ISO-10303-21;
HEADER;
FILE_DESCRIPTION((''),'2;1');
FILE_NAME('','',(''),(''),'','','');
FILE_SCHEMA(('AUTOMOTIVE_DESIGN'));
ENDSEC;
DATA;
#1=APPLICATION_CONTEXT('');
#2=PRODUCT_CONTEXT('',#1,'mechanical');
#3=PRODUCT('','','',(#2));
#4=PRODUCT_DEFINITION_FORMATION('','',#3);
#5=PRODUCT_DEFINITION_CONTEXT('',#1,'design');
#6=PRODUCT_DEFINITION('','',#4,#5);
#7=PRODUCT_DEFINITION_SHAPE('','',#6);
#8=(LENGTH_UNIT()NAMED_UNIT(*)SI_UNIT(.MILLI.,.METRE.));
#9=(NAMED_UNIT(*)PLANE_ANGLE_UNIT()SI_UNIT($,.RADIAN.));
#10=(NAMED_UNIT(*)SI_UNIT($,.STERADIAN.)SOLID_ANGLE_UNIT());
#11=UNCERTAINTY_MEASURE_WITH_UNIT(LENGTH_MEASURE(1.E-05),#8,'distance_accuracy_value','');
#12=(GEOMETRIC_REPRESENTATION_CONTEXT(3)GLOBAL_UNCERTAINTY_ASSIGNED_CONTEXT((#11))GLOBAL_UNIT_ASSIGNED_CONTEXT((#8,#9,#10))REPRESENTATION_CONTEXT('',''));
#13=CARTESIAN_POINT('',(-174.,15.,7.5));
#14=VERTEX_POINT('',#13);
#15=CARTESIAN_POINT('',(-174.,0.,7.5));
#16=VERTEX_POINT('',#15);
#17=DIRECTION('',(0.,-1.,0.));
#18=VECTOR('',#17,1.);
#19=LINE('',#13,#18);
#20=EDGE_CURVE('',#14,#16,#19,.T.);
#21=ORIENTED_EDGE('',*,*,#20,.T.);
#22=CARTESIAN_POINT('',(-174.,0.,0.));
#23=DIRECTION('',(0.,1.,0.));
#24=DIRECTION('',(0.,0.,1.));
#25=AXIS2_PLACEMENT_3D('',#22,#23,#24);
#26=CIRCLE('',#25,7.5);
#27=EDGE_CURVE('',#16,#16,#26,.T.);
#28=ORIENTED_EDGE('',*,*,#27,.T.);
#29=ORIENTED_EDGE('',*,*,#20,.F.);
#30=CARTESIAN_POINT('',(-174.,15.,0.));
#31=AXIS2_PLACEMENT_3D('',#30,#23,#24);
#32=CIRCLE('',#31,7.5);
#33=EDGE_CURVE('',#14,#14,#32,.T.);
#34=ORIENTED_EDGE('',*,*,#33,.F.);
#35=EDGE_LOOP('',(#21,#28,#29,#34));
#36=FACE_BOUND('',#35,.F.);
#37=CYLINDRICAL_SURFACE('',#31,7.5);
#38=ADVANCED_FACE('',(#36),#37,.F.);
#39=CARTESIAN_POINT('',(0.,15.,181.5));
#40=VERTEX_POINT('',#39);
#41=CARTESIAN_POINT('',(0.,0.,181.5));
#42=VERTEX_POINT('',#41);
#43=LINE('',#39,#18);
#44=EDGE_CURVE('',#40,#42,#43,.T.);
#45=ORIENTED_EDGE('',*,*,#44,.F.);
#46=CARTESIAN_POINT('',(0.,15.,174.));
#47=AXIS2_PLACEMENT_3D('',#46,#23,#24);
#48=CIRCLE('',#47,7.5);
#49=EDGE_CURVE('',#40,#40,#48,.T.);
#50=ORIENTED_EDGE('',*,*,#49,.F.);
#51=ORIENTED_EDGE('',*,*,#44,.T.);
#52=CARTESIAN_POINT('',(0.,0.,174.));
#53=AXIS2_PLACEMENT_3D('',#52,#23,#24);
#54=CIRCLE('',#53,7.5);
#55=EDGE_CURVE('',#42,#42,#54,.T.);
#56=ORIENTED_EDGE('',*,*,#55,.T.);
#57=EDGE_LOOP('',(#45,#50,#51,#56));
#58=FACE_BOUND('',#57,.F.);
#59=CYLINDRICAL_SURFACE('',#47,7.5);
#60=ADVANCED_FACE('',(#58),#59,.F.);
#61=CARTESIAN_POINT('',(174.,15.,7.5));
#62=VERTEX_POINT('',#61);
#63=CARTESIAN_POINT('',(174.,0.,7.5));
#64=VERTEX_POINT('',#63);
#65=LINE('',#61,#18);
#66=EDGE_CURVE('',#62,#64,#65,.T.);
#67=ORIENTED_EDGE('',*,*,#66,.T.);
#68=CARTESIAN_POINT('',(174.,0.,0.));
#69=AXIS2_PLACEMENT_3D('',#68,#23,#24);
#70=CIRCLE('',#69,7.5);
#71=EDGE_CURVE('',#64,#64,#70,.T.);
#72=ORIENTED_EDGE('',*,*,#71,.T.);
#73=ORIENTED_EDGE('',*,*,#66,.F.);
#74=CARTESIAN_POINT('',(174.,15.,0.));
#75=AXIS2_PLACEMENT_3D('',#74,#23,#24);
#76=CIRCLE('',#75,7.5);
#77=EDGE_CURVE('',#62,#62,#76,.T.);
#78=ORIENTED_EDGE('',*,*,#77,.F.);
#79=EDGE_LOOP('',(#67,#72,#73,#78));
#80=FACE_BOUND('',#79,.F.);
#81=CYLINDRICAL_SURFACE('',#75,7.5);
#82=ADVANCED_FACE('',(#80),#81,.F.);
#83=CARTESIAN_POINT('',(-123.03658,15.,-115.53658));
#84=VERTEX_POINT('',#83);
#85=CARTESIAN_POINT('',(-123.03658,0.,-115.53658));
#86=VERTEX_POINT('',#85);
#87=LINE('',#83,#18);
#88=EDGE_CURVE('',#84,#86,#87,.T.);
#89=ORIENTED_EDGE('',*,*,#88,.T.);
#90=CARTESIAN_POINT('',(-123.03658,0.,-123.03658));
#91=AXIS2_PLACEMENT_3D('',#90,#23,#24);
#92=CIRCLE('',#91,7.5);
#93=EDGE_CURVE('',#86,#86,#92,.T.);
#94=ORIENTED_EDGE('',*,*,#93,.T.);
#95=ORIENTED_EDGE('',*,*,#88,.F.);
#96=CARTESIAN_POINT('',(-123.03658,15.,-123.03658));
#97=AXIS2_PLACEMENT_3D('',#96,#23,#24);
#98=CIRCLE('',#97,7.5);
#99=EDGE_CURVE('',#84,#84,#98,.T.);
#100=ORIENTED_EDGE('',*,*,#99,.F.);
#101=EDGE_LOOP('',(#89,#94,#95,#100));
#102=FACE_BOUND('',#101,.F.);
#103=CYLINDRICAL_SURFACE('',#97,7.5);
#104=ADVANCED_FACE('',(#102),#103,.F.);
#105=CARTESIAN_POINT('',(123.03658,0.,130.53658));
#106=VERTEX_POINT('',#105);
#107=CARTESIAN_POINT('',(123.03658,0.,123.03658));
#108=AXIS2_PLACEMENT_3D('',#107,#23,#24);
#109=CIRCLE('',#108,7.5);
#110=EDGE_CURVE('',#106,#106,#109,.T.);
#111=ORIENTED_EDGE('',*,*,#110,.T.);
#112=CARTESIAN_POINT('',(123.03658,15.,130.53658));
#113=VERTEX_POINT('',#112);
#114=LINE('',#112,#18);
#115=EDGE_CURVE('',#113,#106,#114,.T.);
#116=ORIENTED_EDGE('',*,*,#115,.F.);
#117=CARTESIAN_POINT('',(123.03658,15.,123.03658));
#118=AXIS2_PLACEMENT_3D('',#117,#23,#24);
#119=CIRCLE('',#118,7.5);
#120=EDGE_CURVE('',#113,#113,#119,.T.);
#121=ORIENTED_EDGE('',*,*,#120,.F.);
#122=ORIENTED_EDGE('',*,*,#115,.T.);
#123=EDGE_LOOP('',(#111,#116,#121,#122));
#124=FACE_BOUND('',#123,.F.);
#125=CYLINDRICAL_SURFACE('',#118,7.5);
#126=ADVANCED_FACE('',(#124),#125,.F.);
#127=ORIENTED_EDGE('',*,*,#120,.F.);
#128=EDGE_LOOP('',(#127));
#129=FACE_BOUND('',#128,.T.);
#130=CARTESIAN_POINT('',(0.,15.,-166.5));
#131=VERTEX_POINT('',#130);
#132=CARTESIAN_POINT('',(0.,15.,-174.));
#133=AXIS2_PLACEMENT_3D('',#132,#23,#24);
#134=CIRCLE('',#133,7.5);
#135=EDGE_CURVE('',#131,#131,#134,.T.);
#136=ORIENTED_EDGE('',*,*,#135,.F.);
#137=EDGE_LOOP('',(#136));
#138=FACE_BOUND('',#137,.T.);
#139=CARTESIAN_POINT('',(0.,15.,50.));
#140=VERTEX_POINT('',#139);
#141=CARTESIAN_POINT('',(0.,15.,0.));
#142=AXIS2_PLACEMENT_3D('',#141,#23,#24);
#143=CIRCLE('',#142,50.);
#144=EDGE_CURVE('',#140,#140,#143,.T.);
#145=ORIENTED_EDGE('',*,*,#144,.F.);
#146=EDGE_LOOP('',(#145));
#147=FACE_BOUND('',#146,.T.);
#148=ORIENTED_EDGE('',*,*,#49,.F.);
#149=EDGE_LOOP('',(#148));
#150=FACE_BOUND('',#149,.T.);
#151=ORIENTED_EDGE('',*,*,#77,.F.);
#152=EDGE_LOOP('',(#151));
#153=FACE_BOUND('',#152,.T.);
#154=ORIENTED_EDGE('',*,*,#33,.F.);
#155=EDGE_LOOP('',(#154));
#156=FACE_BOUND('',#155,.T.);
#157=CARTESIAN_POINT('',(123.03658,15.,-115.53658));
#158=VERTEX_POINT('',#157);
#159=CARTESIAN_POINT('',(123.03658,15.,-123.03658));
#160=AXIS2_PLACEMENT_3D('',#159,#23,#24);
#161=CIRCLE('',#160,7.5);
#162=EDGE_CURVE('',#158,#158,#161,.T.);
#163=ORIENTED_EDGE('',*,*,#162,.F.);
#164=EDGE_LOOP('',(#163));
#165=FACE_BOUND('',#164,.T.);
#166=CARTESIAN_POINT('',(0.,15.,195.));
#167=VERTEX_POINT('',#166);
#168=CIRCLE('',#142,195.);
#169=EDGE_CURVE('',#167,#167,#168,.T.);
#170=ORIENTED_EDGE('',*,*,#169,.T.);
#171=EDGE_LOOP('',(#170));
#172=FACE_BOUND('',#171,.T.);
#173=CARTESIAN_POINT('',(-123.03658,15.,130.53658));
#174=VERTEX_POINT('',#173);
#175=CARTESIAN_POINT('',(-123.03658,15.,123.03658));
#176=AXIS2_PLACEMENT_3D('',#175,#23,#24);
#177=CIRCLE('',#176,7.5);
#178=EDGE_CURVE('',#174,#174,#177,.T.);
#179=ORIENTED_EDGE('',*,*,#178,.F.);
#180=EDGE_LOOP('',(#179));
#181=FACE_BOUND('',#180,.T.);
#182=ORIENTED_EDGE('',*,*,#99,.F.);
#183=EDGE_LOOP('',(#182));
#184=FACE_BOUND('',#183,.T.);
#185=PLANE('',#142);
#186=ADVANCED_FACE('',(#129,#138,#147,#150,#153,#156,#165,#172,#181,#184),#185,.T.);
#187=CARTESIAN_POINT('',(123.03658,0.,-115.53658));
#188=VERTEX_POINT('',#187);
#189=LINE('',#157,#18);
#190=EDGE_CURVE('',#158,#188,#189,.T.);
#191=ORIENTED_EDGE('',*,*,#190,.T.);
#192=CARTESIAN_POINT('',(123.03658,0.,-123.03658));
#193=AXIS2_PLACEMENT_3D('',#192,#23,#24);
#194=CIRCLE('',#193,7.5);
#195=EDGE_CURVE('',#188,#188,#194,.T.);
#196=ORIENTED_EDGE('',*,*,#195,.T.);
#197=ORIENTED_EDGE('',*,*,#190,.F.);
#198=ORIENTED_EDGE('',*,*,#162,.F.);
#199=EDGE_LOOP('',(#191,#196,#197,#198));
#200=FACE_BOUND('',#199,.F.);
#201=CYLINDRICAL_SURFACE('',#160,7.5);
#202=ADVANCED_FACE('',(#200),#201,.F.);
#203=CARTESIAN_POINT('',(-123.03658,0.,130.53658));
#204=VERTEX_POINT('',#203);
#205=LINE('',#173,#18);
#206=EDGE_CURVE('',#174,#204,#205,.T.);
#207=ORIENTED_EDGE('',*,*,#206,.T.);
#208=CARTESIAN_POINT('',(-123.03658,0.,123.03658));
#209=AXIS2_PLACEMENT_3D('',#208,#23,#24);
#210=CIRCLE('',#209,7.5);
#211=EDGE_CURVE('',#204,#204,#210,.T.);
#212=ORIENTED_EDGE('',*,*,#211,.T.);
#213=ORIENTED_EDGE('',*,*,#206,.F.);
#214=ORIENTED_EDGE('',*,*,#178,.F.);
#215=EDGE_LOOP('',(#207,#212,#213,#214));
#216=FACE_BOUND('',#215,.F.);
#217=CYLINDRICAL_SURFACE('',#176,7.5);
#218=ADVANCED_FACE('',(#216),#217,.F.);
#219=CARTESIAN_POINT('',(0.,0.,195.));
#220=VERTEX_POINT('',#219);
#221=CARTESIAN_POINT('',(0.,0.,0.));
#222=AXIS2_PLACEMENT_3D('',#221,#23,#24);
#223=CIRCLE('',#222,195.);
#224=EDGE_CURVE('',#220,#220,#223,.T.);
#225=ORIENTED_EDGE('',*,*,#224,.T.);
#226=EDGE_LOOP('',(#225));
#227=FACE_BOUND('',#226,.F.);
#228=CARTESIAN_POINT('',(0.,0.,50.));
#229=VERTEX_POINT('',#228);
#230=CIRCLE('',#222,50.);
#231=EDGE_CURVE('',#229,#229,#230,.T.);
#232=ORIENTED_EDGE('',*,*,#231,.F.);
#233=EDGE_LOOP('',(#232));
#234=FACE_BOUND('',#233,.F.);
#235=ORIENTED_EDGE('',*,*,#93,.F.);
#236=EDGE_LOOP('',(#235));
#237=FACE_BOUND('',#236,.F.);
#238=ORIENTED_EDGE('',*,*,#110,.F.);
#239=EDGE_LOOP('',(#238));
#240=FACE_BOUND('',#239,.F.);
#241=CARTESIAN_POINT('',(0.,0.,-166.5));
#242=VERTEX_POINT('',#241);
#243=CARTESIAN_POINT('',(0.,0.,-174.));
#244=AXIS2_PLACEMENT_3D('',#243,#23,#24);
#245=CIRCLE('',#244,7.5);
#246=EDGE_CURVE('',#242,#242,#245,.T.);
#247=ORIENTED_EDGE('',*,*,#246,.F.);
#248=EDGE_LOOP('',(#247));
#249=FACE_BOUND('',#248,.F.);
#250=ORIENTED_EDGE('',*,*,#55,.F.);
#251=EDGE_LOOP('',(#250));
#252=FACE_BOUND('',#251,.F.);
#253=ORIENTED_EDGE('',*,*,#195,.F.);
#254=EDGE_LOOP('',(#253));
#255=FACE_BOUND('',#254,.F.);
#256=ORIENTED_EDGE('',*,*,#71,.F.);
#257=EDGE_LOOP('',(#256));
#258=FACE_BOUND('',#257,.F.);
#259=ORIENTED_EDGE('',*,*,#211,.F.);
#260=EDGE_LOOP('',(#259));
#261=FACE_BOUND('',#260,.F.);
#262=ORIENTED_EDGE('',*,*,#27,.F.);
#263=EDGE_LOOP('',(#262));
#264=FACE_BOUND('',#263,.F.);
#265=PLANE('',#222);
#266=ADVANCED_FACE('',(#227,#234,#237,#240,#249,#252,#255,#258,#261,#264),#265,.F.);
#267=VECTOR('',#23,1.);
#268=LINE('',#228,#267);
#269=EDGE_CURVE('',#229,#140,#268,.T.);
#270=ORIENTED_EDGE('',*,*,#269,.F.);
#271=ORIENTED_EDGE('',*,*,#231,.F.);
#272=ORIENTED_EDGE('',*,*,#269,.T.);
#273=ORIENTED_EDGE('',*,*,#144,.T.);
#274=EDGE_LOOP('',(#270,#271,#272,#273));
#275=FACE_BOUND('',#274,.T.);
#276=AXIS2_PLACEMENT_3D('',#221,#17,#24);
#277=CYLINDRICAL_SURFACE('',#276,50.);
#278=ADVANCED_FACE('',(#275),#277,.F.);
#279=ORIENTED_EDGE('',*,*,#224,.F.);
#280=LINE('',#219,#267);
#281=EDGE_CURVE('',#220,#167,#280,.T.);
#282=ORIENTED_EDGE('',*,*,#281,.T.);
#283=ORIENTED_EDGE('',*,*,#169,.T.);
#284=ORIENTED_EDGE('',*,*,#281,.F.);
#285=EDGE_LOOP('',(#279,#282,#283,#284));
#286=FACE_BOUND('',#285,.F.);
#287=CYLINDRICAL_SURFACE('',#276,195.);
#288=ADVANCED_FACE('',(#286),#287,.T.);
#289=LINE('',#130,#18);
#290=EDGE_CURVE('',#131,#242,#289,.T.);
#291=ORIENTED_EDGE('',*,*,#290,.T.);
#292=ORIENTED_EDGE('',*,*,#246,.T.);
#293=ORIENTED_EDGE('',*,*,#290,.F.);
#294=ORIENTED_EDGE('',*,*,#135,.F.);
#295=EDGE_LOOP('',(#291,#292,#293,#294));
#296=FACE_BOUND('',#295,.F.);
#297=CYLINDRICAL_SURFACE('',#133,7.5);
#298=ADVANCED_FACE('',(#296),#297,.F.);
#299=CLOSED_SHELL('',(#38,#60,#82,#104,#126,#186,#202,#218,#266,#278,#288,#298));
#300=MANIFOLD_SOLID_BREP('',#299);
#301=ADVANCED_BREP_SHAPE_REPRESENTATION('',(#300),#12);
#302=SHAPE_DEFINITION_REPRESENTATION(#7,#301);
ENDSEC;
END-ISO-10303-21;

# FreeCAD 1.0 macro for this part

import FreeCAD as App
import Part
import Sketcher
from FreeCAD import Vector
Q = App.Units.Quantity

doc = App.newDocument("Part")
body = doc.addObject("PartDesign::Body", "Body")

sketch1 = body.newObject("Sketcher::SketchObject", "Sketch")
sketch1.AttachmentSupport = (doc.getObject("XZ_Plane"), [""])
sketch1.MapMode = "FlatFace"
sketch1.addGeometry(Part.Circle(Vector(0, 0, 0), Vector(0, 0, 1), 195), False)
sketch1.addGeometry(Part.Circle(Vector(0, 0, 0), Vector(0, 0, 1), 50), False)
sketch1.addConstraint(Sketcher.Constraint("Coincident", 0, 3, -1, 1))
sketch1.addConstraint(Sketcher.Constraint("Coincident", 1, 3, -1, 1))
sketch1.addConstraint(Sketcher.Constraint("Diameter", 0, Q("390 mm")))
sketch1.addConstraint(Sketcher.Constraint("Diameter", 1, Q("100 mm")))
pad1 = body.newObject("PartDesign::Pad", "Pad")
pad1.Profile = sketch1
pad1.Length = 15
pad1.Reversed = True

sketch2 = body.newObject("Sketcher::SketchObject", "Sketch001")
sketch2.AttachmentSupport = (doc.getObject("XZ_Plane"), [""])
sketch2.MapMode = "FlatFace"
sketch2.AttachmentOffset = App.Placement(Vector(0, 0, -15), App.Rotation())
sketch2.addGeometry(Part.Circle(Vector(-174, 0, 0), Vector(0, 0, 1), 8), False)
sketch2.addConstraint(Sketcher.Constraint("PointOnObject", 0, 3, -1))
sketch2.addConstraint(Sketcher.Constraint("Diameter", 0, Q("15 mm")))
sketch2.addConstraint(Sketcher.Constraint("DistanceX", 0, 3, -1, 1, Q("174 mm")))
pocket1 = body.newObject("PartDesign::Pocket", "Pocket")
pocket1.Profile = sketch2
pocket1.Type = "UpToFirst"
pocket1.Reversed = True

sketch3 = body.newObject("Sketcher::SketchObject", "Sketch002")
sketch3.AttachmentSupport = (doc.getObject("XZ_Plane"), [""])
sketch3.MapMode = "FlatFace"
sketch3.AttachmentOffset = App.Placement(Vector(0, 0, -15), App.Rotation())
sketch3.addGeometry(Part.Circle(Vector(-123, -123, 0), Vector(0, 0, 1), 8), False)
sketch3.addConstraint(Sketcher.Constraint("Diameter", 0, Q("15 mm")))
sketch3.addConstraint(Sketcher.Constraint("DistanceX", 0, 3, -1, 1, Q("123.03658 mm")))
sketch3.addConstraint(Sketcher.Constraint("DistanceY", 0, 3, -1, 1, Q("123.03658 mm")))
pocket2 = body.newObject("PartDesign::Pocket", "Pocket001")
pocket2.Profile = sketch3
pocket2.Type = "UpToFirst"
pocket2.Reversed = True

sketch4 = body.newObject("Sketcher::SketchObject", "Sketch003")
sketch4.AttachmentSupport = (doc.getObject("XZ_Plane"), [""])
sketch4.MapMode = "FlatFace"
sketch4.AttachmentOffset = App.Placement(Vector(0, 0, -15), App.Rotation())
sketch4.addGeometry(Part.Circle(Vector(0, -174, 0), Vector(0, 0, 1), 8), False)
sketch4.addConstraint(Sketcher.Constraint("PointOnObject", 0, 3, -2))
sketch4.addConstraint(Sketcher.Constraint("Diameter", 0, Q("15 mm")))
sketch4.addConstraint(Sketcher.Constraint("DistanceY", 0, 3, -1, 1, Q("174 mm")))
pocket3 = body.newObject("PartDesign::Pocket", "Pocket002")
pocket3.Profile = sketch4
pocket3.Type = "UpToFirst"
pocket3.Reversed = True

sketch5 = body.newObject("Sketcher::SketchObject", "Sketch004")
sketch5.AttachmentSupport = (doc.getObject("XZ_Plane"), [""])
sketch5.MapMode = "FlatFace"
sketch5.AttachmentOffset = App.Placement(Vector(0, 0, -15), App.Rotation())
sketch5.addGeometry(Part.Circle(Vector(123, -123, 0), Vector(0, 0, 1), 8), False)
sketch5.addConstraint(Sketcher.Constraint("Diameter", 0, Q("15 mm")))
sketch5.addConstraint(Sketcher.Constraint("DistanceX", -1, 1, 0, 3, Q("123.03658 mm")))
sketch5.addConstraint(Sketcher.Constraint("DistanceY", 0, 3, -1, 1, Q("123.03658 mm")))
pocket4 = body.newObject("PartDesign::Pocket", "Pocket003")
pocket4.Profile = sketch5
pocket4.Type = "UpToFirst"
pocket4.Reversed = True

sketch6 = body.newObject("Sketcher::SketchObject", "Sketch005")
sketch6.AttachmentSupport = (doc.getObject("XZ_Plane"), [""])
sketch6.MapMode = "FlatFace"
sketch6.AttachmentOffset = App.Placement(Vector(0, 0, -15), App.Rotation())
sketch6.addGeometry(Part.Circle(Vector(174, 0, 0), Vector(0, 0, 1), 8), False)
sketch6.addConstraint(Sketcher.Constraint("PointOnObject", 0, 3, -1))
sketch6.addConstraint(Sketcher.Constraint("Diameter", 0, Q("15 mm")))
sketch6.addConstraint(Sketcher.Constraint("DistanceX", -1, 1, 0, 3, Q("174 mm")))
pocket5 = body.newObject("PartDesign::Pocket", "Pocket004")
pocket5.Profile = sketch6
pocket5.Type = "UpToFirst"
pocket5.Reversed = True

sketch7 = body.newObject("Sketcher::SketchObject", "Sketch006")
sketch7.AttachmentSupport = (doc.getObject("XZ_Plane"), [""])
sketch7.MapMode = "FlatFace"
sketch7.AttachmentOffset = App.Placement(Vector(0, 0, -15), App.Rotation())
sketch7.addGeometry(Part.Circle(Vector(123, 123, 0), Vector(0, 0, 1), 8), False)
sketch7.addConstraint(Sketcher.Constraint("Diameter", 0, Q("15 mm")))
sketch7.addConstraint(Sketcher.Constraint("DistanceX", -1, 1, 0, 3, Q("123.03658 mm")))
sketch7.addConstraint(Sketcher.Constraint("DistanceY", -1, 1, 0, 3, Q("123.03658 mm")))
pocket6 = body.newObject("PartDesign::Pocket", "Pocket005")
pocket6.Profile = sketch7
pocket6.Type = "UpToFirst"
pocket6.Reversed = True

sketch8 = body.newObject("Sketcher::SketchObject", "Sketch007")
sketch8.AttachmentSupport = (doc.getObject("XZ_Plane"), [""])
sketch8.MapMode = "FlatFace"
sketch8.AttachmentOffset = App.Placement(Vector(0, 0, -15), App.Rotation())
sketch8.addGeometry(Part.Circle(Vector(0, 174, 0), Vector(0, 0, 1), 8), False)
sketch8.addConstraint(Sketcher.Constraint("PointOnObject", 0, 3, -2))
sketch8.addConstraint(Sketcher.Constraint("Diameter", 0, Q("15 mm")))
sketch8.addConstraint(Sketcher.Constraint("DistanceY", -1, 1, 0, 3, Q("174 mm")))
pocket7 = body.newObject("PartDesign::Pocket", "Pocket006")
pocket7.Profile = sketch8
pocket7.Type = "UpToFirst"
pocket7.Reversed = True

sketch9 = body.newObject("Sketcher::SketchObject", "Sketch008")
sketch9.AttachmentSupport = (doc.getObject("XZ_Plane"), [""])
sketch9.MapMode = "FlatFace"
sketch9.AttachmentOffset = App.Placement(Vector(0, 0, -15), App.Rotation())
sketch9.addGeometry(Part.Circle(Vector(-123, 123, 0), Vector(0, 0, 1), 8), False)
sketch9.addConstraint(Sketcher.Constraint("Diameter", 0, Q("15 mm")))
sketch9.addConstraint(Sketcher.Constraint("DistanceX", 0, 3, -1, 1, Q("123.03658 mm")))
sketch9.addConstraint(Sketcher.Constraint("DistanceY", -1, 1, 0, 3, Q("123.03658 mm")))
pocket8 = body.newObject("PartDesign::Pocket", "Pocket007")
pocket8.Profile = sketch9
pocket8.Type = "UpToFirst"
pocket8.Reversed = True

doc.recompute()
